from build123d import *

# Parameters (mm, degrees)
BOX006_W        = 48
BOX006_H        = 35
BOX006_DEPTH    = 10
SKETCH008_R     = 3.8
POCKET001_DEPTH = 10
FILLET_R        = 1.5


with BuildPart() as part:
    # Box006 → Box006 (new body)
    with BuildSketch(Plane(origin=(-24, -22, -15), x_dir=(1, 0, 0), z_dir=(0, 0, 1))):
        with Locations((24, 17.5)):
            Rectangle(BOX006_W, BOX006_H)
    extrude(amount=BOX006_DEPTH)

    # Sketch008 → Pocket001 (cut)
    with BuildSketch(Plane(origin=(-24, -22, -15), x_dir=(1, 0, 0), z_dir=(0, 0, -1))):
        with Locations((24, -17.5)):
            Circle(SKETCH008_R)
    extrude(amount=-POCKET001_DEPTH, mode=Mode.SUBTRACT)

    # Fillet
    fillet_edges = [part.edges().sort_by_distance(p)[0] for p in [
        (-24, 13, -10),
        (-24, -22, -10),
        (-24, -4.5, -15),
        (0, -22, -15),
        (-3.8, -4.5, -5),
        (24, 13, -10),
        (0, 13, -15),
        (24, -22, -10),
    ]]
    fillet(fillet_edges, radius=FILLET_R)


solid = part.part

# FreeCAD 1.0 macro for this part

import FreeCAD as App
import Part
import Sketcher
from FreeCAD import Vector
Q = App.Units.Quantity


def edges_at(feature, points):
    """Names of the edges that pass closest to the given points."""
    edges = feature.Shape.Edges
    near = lambda p: min(range(len(edges)), key=lambda i: edges[i].distToShape(Part.Vertex(*p))[0])
    return sorted({f"Edge{near(p) + 1}" for p in points})

doc = App.newDocument("Part")
body = doc.addObject("PartDesign::Body", "Body")

# Sketch on XY plane
sketch1 = doc.addObject("Sketcher::SketchObject", "Sketch")
body.addObject(sketch1)
sketch1.AttachmentSupport = (doc.XY_Plane, [""])
sketch1.MapMode = "FlatFace"
sketch1.AttachmentOffset = App.Placement(Vector(0, 0, -15), App.Rotation())
sketch1.addGeometry(Part.LineSegment(Vector(-24, 13, 0), Vector(-24, -22, 0)), False)
sketch1.addGeometry(Part.LineSegment(Vector(-24, -22, 0), Vector(24, -22, 0)), False)
sketch1.addGeometry(Part.LineSegment(Vector(24, -22, 0), Vector(24, 13, 0)), False)
sketch1.addGeometry(Part.LineSegment(Vector(24, 13, 0), Vector(-24, 13, 0)), False)
sketch1.addConstraint(Sketcher.Constraint("Coincident", 0, 2, 1, 1))
sketch1.addConstraint(Sketcher.Constraint("Coincident", 1, 2, 2, 1))
sketch1.addConstraint(Sketcher.Constraint("Coincident", 2, 2, 3, 1))
sketch1.addConstraint(Sketcher.Constraint("Coincident", 3, 2, 0, 1))
sketch1.addConstraint(Sketcher.Constraint("Vertical", 0))
sketch1.addConstraint(Sketcher.Constraint("Horizontal", 1))
sketch1.addConstraint(Sketcher.Constraint("Vertical", 2))
sketch1.addConstraint(Sketcher.Constraint("Horizontal", 3))
sketch1.addConstraint(Sketcher.Constraint("DistanceX", 1, 1, 1, 2, Q("48 mm")))
sketch1.addConstraint(Sketcher.Constraint("DistanceY", 0, 2, 0, 1, Q("35 mm")))
sketch1.addConstraint(Sketcher.Constraint("DistanceX", 0, 2, -1, 1, Q("24 mm")))
sketch1.addConstraint(Sketcher.Constraint("DistanceY", 0, 2, -1, 1, Q("22 mm")))
pad1 = doc.addObject("PartDesign::Pad", "Pad")
body.addObject(pad1)
pad1.Profile = sketch1
pad1.Length = 10

# Sketch on XY plane
sketch2 = doc.addObject("Sketcher::SketchObject", "Sketch001")
body.addObject(sketch2)
sketch2.AttachmentSupport = (doc.XY_Plane, [""])
sketch2.MapMode = "FlatFace"
sketch2.AttachmentOffset = App.Placement(Vector(0, 0, -15), App.Rotation())
sketch2.addGeometry(Part.Circle(Vector(0, -4.5, 0), Vector(0, 0, 1), 3.8), False)
sketch2.addConstraint(Sketcher.Constraint("PointOnObject", 0, 3, -2))
sketch2.addConstraint(Sketcher.Constraint("Diameter", 0, Q("7.6 mm")))
sketch2.addConstraint(Sketcher.Constraint("DistanceY", 0, 3, -1, 1, Q("4.5 mm")))
pocket1 = doc.addObject("PartDesign::Pocket", "Pocket")
body.addObject(pocket1)
pocket1.Profile = sketch2
pocket1.Length = 10
pocket1.Reversed = True
doc.recompute()

fillet = doc.addObject("PartDesign::Fillet", "Fillet")
body.addObject(fillet)
fillet.Base = (pocket1, edges_at(pocket1, [
    (-24, 13, -10),
    (-24, -22, -10),
    (-24, -4.5, -15),
    (0, -22, -15),
    (-3.8, -4.5, -5),
    (24, 13, -10),
    (0, 13, -15),
    (24, -22, -10),
]))
fillet.Radius = 1.5

doc.recompute()
